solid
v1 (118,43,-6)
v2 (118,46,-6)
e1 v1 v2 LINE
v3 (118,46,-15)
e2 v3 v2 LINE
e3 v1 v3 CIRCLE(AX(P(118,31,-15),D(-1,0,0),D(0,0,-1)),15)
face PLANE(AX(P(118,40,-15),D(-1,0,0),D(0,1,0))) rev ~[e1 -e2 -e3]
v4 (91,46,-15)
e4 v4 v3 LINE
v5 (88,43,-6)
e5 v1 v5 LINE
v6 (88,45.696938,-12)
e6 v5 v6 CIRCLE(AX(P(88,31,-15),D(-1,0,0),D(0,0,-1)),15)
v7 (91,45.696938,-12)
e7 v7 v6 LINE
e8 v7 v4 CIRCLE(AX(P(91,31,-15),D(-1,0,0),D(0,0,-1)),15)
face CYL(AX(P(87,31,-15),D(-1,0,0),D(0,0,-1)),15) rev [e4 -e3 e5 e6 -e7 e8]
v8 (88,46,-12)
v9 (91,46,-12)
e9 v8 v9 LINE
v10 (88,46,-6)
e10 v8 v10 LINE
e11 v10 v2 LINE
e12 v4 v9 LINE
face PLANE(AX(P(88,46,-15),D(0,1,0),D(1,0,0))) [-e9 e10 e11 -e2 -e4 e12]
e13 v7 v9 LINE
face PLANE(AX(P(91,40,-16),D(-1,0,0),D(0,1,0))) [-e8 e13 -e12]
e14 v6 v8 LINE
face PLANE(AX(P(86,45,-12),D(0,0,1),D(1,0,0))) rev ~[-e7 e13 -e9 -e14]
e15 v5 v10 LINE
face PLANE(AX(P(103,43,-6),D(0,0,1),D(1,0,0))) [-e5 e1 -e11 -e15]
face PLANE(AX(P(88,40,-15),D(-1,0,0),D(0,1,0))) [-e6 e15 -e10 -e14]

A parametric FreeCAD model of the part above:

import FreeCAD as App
import Part
import Sketcher

doc = App.newDocument("Part")
params = doc.addObject("Spreadsheet::Sheet", "Params")
for row, (alias, value) in enumerate([
    ("sketch1_width", "10 mm"),
    ("pad1_length", "4 mm"),
    ("sketch2_diameter", "30 mm"),
    ("pad2_length", "32 mm"),
    ("sketch3_width", "30 mm"),
    ("sketch3_height", "6 mm"),
    ("pad3_length", "9 mm"),
], start=1):
    params.set(f"A{row}", alias)
    params.set(f"B{row}", "=" + value)
    params.setAlias(f"B{row}", alias)

body = doc.addObject("PartDesign::Body", "Body")

# Sketch on XY plane
sketch1 = doc.addObject("Sketcher::SketchObject", "Sketch")
body.addObject(sketch1)
sketch1.AttachmentSupport = (doc.XY_Plane, [""])
sketch1.MapMode = "FlatFace"
sketch1.AttachmentOffset = App.Placement(App.Vector(0, 0, -16), App.Rotation())
sketch1.addGeometry([
    Part.LineSegment(App.Vector(81, 50, 0), App.Vector(81, 40, 0)),
    Part.LineSegment(App.Vector(81, 40, 0), App.Vector(91, 40, 0)),
    Part.LineSegment(App.Vector(91, 40, 0), App.Vector(91, 50, 0)),
    Part.LineSegment(App.Vector(91, 50, 0), App.Vector(81, 50, 0)),
], False)
sketch1.addConstraint([
    Sketcher.Constraint("Coincident", 0, 2, 1, 1),
    Sketcher.Constraint("Coincident", 1, 2, 2, 1),
    Sketcher.Constraint("Coincident", 2, 2, 3, 1),
    Sketcher.Constraint("Coincident", 3, 2, 0, 1),
    Sketcher.Constraint("Vertical", 0),
    Sketcher.Constraint("Horizontal", 1),
    Sketcher.Constraint("Vertical", 2),
    Sketcher.Constraint("Horizontal", 3),
    Sketcher.Constraint("Equal", 3, 0),
    Sketcher.Constraint("DistanceX", 1, 1, 1, 2, 10.0),
    Sketcher.Constraint("DistanceX", -1, 1, 0, 2, 81.0),
    Sketcher.Constraint("DistanceY", -1, 1, 0, 2, 40.0),
])
sketch1.setExpression("Constraints[9]", "Params.sketch1_width")
pad1 = doc.addObject("PartDesign::Pad", "Pad")
body.addObject(pad1)
pad1.Profile = sketch1
pad1.setExpression("Length", "Params.pad1_length")
body2 = doc.addObject("PartDesign::Body", "Body001")

# Sketch on YZ plane
sketch2 = doc.addObject("Sketcher::SketchObject", "Sketch001")
body2.addObject(sketch2)
sketch2.AttachmentSupport = (doc.getObject("YZ_Plane001"), [""])
sketch2.MapMode = "FlatFace"
sketch2.addGeometry(Part.Circle(App.Vector(31, -15, 0), App.Vector(0, 0, 1), 15), False)
sketch2.addConstraint([
    Sketcher.Constraint("Diameter", 0, 30.0),
    Sketcher.Constraint("DistanceX", -1, 1, 0, 3, 31.0),
    Sketcher.Constraint("DistanceY", 0, 3, -1, 1, 15.0),
])
sketch2.setExpression("Constraints[0]", "Params.sketch2_diameter")
pad2 = doc.addObject("PartDesign::Pad", "Pad001")
body2.addObject(pad2)
pad2.Profile = sketch2
pad2.setExpression("Length", "Params.pad2_length")
body3 = doc.addObject("PartDesign::Body", "Body002")

# Sketch on XY plane
sketch3 = doc.addObject("Sketcher::SketchObject", "Sketch002")
body3.addObject(sketch3)
sketch3.AttachmentSupport = (doc.getObject("XY_Plane002"), [""])
sketch3.MapMode = "FlatFace"
sketch3.AttachmentOffset = App.Placement(App.Vector(0, 0, -15), App.Rotation())
sketch3.addGeometry([
    Part.LineSegment(App.Vector(1, 46, 0), App.Vector(1, 40, 0)),
    Part.LineSegment(App.Vector(1, 40, 0), App.Vector(31, 40, 0)),
    Part.LineSegment(App.Vector(31, 40, 0), App.Vector(31, 46, 0)),
    Part.LineSegment(App.Vector(31, 46, 0), App.Vector(1, 46, 0)),
], False)
sketch3.addConstraint([
    Sketcher.Constraint("Coincident", 0, 2, 1, 1),
    Sketcher.Constraint("Coincident", 1, 2, 2, 1),
    Sketcher.Constraint("Coincident", 2, 2, 3, 1),
    Sketcher.Constraint("Coincident", 3, 2, 0, 1),
    Sketcher.Constraint("Vertical", 0),
    Sketcher.Constraint("Horizontal", 1),
    Sketcher.Constraint("Vertical", 2),
    Sketcher.Constraint("Horizontal", 3),
    Sketcher.Constraint("DistanceX", 1, 1, 1, 2, 30.0),
    Sketcher.Constraint("DistanceY", 0, 2, 0, 1, 6.0),
    Sketcher.Constraint("DistanceX", -1, 1, 0, 2, 1.0),
    Sketcher.Constraint("DistanceY", -1, 1, 0, 2, 40.0),
])
sketch3.setExpression("Constraints[8]", "Params.sketch3_width")
sketch3.setExpression("Constraints[9]", "Params.sketch3_height")
pad3 = doc.addObject("PartDesign::Pad", "Pad002")
body3.addObject(pad3)
pad3.Profile = sketch3
pad3.setExpression("Length", "Params.pad3_length")
doc.recompute()

boolean = doc.addObject("PartDesign::Boolean", "Boolean")
body3.addObject(boolean)
boolean.Type = "Cut"
boolean.addObjects([body2])
body4 = doc.addObject("PartDesign::Body", "Body003")
doc.recompute()

body3.Placement = App.Placement(App.Vector(87, 0, 0), App.Rotation(App.Vector(0, 0, 1), 0))
boolean2 = doc.addObject("PartDesign::Boolean", "Boolean001")
body4.addObject(boolean2)
boolean2.Type = "Fuse"
boolean2.addObjects([body3])
doc.recompute()

boolean3 = doc.addObject("PartDesign::Boolean", "Boolean002")
body4.addObject(boolean3)
boolean3.Type = "Cut"
boolean3.addObjects([body])

doc.recompute()
